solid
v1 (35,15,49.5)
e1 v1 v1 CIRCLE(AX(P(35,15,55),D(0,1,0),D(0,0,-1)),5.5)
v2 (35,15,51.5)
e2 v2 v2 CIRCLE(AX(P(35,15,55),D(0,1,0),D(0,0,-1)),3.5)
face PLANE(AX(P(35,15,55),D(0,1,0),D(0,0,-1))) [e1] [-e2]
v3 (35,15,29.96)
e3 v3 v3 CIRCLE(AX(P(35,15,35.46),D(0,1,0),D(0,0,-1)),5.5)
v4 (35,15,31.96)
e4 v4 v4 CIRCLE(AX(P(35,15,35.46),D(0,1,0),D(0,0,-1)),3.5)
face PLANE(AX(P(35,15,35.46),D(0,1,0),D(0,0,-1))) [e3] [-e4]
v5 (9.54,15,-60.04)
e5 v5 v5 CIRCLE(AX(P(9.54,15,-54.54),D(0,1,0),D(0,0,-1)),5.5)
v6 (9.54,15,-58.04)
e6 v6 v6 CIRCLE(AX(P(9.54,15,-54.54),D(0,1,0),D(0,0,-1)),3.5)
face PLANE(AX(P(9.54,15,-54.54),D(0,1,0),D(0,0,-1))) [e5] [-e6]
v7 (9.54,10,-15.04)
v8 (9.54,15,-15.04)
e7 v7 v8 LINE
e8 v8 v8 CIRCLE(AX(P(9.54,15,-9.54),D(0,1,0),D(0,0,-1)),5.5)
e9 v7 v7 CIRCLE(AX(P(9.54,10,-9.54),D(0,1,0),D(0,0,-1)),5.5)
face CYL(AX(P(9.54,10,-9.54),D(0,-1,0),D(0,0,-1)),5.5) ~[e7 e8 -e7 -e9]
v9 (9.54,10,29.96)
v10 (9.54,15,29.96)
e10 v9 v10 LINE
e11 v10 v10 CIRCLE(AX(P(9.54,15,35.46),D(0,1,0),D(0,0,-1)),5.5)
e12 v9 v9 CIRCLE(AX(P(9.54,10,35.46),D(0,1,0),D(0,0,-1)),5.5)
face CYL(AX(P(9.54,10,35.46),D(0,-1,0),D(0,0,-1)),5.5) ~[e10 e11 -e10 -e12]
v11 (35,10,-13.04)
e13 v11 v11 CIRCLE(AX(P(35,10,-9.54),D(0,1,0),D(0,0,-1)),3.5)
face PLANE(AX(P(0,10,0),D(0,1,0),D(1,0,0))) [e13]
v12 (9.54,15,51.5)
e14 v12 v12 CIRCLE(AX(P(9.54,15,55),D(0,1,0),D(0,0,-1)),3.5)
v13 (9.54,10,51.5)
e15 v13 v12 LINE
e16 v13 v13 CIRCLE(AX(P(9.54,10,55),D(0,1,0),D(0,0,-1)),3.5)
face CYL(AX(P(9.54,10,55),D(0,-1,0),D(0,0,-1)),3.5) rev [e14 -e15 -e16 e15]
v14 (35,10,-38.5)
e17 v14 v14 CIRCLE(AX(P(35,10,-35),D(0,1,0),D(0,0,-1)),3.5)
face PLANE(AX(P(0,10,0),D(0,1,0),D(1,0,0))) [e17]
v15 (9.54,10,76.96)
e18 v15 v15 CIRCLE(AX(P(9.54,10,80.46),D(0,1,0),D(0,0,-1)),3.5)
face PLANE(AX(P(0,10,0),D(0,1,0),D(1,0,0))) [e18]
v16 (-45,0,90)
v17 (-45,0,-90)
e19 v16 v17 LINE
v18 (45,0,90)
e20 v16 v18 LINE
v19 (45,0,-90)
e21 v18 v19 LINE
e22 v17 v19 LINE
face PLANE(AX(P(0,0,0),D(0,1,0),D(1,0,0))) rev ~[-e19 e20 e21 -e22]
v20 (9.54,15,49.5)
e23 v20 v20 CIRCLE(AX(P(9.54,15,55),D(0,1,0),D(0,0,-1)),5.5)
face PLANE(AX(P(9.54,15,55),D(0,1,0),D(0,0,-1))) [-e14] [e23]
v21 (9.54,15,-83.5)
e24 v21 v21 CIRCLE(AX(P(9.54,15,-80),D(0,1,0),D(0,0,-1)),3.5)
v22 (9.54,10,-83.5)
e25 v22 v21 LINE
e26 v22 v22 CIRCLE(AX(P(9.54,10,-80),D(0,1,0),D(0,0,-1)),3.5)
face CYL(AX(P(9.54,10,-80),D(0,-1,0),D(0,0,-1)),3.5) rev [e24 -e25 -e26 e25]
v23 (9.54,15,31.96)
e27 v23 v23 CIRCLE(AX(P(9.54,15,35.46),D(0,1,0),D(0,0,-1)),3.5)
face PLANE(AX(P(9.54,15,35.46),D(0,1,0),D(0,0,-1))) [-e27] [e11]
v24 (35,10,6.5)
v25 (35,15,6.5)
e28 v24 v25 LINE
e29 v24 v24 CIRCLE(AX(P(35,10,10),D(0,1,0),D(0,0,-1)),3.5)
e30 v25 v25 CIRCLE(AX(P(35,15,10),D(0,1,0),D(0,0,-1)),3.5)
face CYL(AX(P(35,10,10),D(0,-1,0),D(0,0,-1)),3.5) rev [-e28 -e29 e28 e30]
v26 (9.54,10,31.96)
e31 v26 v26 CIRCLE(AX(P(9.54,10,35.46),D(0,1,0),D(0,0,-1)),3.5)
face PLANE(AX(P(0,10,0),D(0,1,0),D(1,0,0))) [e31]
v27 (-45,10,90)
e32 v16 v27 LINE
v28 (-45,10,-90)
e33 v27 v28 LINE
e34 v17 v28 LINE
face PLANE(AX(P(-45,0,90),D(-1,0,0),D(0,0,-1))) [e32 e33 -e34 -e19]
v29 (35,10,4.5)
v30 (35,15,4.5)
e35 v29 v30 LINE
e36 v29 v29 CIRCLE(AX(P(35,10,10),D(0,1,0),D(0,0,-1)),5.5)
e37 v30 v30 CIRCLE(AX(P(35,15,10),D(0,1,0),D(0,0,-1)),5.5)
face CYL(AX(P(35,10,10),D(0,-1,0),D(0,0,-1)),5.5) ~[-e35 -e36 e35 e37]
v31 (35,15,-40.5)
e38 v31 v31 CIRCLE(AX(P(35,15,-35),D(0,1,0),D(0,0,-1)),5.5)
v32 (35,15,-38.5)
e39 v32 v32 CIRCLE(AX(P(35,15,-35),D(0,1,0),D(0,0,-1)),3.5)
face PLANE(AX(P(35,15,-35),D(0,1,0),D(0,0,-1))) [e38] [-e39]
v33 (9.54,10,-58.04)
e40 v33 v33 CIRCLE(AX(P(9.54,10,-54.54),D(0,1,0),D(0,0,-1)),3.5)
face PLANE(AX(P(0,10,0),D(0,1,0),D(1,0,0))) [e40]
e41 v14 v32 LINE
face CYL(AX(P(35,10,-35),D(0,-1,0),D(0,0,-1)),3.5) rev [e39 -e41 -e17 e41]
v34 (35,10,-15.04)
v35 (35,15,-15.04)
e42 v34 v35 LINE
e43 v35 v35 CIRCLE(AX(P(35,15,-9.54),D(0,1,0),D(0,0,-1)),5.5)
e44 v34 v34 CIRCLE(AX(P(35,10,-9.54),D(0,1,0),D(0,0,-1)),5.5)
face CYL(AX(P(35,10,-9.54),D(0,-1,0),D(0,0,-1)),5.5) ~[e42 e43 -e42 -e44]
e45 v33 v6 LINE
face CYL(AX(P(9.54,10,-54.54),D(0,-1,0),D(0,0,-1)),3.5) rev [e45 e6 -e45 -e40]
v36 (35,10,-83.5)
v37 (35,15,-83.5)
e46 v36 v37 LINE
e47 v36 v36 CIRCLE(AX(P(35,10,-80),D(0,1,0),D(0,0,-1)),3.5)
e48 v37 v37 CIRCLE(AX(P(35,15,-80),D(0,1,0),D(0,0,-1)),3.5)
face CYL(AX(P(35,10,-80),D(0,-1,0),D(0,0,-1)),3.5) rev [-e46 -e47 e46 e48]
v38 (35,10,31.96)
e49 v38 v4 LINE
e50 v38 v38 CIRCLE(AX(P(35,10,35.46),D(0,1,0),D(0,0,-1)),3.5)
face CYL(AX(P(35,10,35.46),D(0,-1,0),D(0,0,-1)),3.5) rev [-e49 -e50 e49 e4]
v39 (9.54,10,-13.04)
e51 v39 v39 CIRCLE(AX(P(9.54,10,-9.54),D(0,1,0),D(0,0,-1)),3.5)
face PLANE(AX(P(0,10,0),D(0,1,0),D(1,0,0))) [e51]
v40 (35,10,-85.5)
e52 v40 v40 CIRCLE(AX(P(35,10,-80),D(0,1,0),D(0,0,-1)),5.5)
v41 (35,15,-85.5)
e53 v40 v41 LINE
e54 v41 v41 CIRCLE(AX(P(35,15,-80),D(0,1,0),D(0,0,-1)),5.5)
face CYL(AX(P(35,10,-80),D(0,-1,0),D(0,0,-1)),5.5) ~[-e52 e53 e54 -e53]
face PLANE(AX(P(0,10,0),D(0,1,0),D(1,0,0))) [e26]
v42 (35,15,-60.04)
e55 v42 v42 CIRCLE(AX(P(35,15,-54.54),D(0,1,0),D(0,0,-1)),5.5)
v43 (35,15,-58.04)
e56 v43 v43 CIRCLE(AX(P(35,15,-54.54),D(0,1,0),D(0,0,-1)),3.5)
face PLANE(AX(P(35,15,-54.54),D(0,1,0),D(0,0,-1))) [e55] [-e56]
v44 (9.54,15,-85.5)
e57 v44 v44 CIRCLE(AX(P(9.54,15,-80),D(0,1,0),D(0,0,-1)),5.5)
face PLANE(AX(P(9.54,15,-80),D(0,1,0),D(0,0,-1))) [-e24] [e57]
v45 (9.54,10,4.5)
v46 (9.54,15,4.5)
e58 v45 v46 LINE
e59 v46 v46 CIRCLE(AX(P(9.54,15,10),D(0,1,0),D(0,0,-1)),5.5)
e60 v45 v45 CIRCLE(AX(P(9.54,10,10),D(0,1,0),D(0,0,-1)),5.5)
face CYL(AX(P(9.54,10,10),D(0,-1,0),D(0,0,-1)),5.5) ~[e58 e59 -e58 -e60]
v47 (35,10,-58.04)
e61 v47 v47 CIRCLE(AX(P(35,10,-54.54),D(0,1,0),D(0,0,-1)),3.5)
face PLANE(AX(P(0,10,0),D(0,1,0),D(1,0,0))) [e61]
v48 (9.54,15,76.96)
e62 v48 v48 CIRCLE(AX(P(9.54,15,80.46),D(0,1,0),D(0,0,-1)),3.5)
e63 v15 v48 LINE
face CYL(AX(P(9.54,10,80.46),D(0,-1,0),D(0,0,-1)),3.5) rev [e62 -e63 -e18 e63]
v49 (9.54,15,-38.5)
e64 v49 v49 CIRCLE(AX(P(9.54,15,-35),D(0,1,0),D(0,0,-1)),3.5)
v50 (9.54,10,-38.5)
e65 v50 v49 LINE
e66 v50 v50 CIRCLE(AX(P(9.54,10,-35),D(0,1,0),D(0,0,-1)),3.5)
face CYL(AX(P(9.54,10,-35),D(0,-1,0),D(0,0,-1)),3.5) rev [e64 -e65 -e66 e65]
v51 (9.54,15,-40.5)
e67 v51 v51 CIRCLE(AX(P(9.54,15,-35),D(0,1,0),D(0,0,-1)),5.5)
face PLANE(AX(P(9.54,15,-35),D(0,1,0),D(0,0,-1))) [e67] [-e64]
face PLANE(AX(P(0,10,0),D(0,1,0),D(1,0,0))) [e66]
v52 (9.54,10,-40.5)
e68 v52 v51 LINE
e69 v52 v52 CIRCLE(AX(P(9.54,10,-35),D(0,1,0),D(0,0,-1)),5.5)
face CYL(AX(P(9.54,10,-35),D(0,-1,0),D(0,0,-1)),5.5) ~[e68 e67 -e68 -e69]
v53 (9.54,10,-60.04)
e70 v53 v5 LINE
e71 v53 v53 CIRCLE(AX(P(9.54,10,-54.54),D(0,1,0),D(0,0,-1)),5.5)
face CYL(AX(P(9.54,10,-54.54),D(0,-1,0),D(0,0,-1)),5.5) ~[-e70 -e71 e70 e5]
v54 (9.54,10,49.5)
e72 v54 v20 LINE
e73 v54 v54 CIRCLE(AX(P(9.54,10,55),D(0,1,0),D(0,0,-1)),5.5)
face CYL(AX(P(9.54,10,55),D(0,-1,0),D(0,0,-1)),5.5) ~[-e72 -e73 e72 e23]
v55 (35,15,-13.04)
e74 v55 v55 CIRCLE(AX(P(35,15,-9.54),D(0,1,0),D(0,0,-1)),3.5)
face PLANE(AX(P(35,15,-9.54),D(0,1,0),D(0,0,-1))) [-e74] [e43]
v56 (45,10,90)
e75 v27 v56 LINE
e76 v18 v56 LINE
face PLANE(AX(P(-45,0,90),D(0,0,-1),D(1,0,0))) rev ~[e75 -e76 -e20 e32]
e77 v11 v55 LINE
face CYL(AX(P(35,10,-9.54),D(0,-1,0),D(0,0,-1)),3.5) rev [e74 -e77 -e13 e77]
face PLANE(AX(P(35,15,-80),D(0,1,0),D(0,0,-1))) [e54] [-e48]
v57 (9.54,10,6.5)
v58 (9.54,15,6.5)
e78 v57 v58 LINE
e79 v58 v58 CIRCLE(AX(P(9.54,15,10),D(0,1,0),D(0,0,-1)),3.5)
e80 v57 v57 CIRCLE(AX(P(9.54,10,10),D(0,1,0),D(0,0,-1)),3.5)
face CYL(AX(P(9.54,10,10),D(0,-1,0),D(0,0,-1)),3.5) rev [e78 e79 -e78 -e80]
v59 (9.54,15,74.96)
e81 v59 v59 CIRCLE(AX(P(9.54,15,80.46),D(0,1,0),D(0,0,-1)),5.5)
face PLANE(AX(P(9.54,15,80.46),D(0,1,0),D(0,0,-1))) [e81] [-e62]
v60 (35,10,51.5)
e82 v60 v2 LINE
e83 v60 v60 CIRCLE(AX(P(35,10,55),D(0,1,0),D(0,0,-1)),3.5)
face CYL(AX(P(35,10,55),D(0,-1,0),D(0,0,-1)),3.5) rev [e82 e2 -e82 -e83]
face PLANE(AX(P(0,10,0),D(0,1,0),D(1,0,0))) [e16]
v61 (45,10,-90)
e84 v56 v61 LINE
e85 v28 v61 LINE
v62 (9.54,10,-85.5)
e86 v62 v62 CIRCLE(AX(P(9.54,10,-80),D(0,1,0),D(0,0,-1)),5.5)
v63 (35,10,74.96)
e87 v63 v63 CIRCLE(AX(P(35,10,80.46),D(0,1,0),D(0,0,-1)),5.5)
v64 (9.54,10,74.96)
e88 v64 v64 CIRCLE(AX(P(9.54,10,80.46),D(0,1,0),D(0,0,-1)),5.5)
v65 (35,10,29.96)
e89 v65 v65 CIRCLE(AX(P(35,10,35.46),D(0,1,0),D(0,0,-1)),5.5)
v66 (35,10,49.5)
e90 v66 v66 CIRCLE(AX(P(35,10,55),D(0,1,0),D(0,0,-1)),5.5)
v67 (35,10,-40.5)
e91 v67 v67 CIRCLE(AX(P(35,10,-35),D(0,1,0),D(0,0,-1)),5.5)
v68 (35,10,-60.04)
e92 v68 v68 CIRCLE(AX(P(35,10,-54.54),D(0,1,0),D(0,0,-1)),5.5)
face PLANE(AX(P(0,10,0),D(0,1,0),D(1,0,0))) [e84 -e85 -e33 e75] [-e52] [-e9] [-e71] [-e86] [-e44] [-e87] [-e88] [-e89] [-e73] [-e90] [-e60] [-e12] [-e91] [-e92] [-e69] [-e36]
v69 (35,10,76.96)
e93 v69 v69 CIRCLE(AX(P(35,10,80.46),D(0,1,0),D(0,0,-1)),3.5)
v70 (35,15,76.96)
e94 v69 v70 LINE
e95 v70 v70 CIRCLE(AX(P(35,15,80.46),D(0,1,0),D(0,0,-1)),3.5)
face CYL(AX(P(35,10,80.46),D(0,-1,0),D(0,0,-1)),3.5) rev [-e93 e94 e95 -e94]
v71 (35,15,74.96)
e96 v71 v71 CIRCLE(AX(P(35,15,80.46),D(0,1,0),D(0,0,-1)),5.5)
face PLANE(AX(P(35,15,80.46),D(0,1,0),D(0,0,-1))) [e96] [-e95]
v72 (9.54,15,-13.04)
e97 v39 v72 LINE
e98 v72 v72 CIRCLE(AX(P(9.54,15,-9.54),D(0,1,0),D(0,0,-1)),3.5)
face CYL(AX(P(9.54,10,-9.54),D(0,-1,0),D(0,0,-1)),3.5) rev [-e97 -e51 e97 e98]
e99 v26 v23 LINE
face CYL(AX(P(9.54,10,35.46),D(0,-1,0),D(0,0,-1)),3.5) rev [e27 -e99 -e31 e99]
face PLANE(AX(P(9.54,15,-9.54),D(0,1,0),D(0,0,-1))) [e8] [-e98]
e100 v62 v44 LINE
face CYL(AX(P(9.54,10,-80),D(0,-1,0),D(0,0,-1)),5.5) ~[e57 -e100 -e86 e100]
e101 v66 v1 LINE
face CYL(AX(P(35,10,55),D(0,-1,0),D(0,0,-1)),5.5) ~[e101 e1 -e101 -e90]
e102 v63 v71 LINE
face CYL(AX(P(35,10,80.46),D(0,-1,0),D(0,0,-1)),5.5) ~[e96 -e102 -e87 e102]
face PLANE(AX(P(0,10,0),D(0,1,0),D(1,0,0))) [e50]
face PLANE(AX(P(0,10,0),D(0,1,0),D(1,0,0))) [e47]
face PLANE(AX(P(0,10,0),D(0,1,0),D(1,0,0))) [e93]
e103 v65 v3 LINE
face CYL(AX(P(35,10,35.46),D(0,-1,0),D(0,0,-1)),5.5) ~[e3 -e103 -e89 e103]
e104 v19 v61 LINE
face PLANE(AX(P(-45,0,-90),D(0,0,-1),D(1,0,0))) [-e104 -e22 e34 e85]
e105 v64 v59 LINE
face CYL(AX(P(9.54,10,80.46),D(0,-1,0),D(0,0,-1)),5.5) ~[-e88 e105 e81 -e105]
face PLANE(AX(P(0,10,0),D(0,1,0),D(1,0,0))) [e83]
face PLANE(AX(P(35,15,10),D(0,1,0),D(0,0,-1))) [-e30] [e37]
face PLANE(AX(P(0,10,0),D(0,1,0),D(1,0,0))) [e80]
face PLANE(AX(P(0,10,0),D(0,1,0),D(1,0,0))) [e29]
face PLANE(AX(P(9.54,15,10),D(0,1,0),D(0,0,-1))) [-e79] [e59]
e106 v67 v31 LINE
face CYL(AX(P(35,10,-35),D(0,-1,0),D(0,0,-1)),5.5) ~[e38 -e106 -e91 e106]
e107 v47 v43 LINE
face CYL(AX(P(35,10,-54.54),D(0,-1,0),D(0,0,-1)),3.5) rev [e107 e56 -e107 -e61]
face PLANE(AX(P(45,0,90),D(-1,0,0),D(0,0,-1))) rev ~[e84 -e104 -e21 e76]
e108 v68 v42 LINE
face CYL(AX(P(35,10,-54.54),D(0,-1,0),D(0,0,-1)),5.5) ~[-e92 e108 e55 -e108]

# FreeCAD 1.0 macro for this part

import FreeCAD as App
import Part
import Sketcher
from FreeCAD import Vector


def add_polygon(sketch, points):
    """Adds a closed chain of lines whose ends are joined by coincident constraints."""
    first, n = sketch.GeometryCount, len(points)
    for a, b in zip(points, points[1:] + points[:1]):
        sketch.addGeometry(Part.LineSegment(App.Vector(*a, 0), App.Vector(*b, 0)), False)
    for i in range(n):
        sketch.addConstraint(Sketcher.Constraint("Coincident", first + i, 2, first + (i + 1) % n, 1))

doc = App.newDocument("Part")
body = doc.addObject("PartDesign::Body", "Body")

# Sketch on XZ plane
sketch1 = body.newObject("Sketcher::SketchObject", "Sketch")
sketch1.AttachmentSupport = (doc.getObject("XZ_Plane"), [""])
sketch1.MapMode = "FlatFace"
add_polygon(sketch1, [(-45, -90), (-45, 90), (45, 90), (45, -90)])  # lines 0-3
sketch1.addConstraint([
    Sketcher.Constraint("Vertical", 0),
    Sketcher.Constraint("Horizontal", 1),
    Sketcher.Constraint("Vertical", 2),
    Sketcher.Constraint("Horizontal", 3),
    Sketcher.Constraint("Symmetric", 0, 2, 2, 2, -1, 1),
    Sketcher.Constraint("DistanceX", 1, 1, 1, 2, 90.0),
    Sketcher.Constraint("DistanceY", 0, 1, 0, 2, 180.0),
])
pad1 = body.newObject("PartDesign::Pad", "Pad")
pad1.Profile = sketch1
pad1.Length = 10
pad1.Reversed = True

# Sketch on XZ plane
sketch2 = body.newObject("Sketcher::SketchObject", "Sketch001")
sketch2.AttachmentSupport = (doc.getObject("XZ_Plane"), [""])
sketch2.MapMode = "FlatFace"
sketch2.AttachmentOffset = App.Placement(Vector(0, 0, -10), App.Rotation())
sketch2.addGeometry([
    Part.Circle(Vector(9.5, 80.5, 0), Vector(0, 0, 1), 5.5),  # 0
    Part.Circle(Vector(9.5, 80.5, 0), Vector(0, 0, 1), 3.5),  # 1
    Part.Circle(Vector(35, 80.5, 0), Vector(0, 0, 1), 5.5),  # 2
    Part.Circle(Vector(35, 80.5, 0), Vector(0, 0, 1), 3.5),  # 3
    Part.Circle(Vector(9.5, 55, 0), Vector(0, 0, 1), 5.5),  # 4
    Part.Circle(Vector(9.5, 55, 0), Vector(0, 0, 1), 3.5),  # 5
    Part.Circle(Vector(35, 55, 0), Vector(0, 0, 1), 5.5),  # 6
    Part.Circle(Vector(35, 55, 0), Vector(0, 0, 1), 3.5),  # 7
    Part.Circle(Vector(9.5, 35.5, 0), Vector(0, 0, 1), 5.5),  # 8
    Part.Circle(Vector(9.5, 35.5, 0), Vector(0, 0, 1), 3.5),  # 9
    Part.Circle(Vector(35, 35.5, 0), Vector(0, 0, 1), 5.5),  # 10
    Part.Circle(Vector(35, 35.5, 0), Vector(0, 0, 1), 3.5),  # 11
    Part.Circle(Vector(9.5, 10, 0), Vector(0, 0, 1), 5.5),  # 12
    Part.Circle(Vector(9.5, 10, 0), Vector(0, 0, 1), 3.5),  # 13
    Part.Circle(Vector(35, 10, 0), Vector(0, 0, 1), 5.5),  # 14
    Part.Circle(Vector(35, 10, 0), Vector(0, 0, 1), 3.5),  # 15
    Part.Circle(Vector(9.5, -9.5, 0), Vector(0, 0, 1), 5.5),  # 16
    Part.Circle(Vector(9.5, -9.5, 0), Vector(0, 0, 1), 3.5),  # 17
    Part.Circle(Vector(35, -9.5, 0), Vector(0, 0, 1), 5.5),  # 18
    Part.Circle(Vector(35, -9.5, 0), Vector(0, 0, 1), 3.5),  # 19
    Part.Circle(Vector(9.5, -35, 0), Vector(0, 0, 1), 5.5),  # 20
    Part.Circle(Vector(9.5, -35, 0), Vector(0, 0, 1), 3.5),  # 21
    Part.Circle(Vector(35, -35, 0), Vector(0, 0, 1), 5.5),  # 22
    Part.Circle(Vector(35, -35, 0), Vector(0, 0, 1), 3.5),  # 23
    Part.Circle(Vector(9.5, -54.5, 0), Vector(0, 0, 1), 5.5),  # 24
    Part.Circle(Vector(9.5, -54.5, 0), Vector(0, 0, 1), 3.5),  # 25
    Part.Circle(Vector(35, -54.5, 0), Vector(0, 0, 1), 5.5),  # 26
    Part.Circle(Vector(35, -54.5, 0), Vector(0, 0, 1), 3.5),  # 27
    Part.Circle(Vector(9.5, -80, 0), Vector(0, 0, 1), 5.5),  # 28
    Part.Circle(Vector(9.5, -80, 0), Vector(0, 0, 1), 3.5),  # 29
    Part.Circle(Vector(35, -80, 0), Vector(0, 0, 1), 5.5),  # 30
    Part.Circle(Vector(35, -80, 0), Vector(0, 0, 1), 3.5),  # 31
], False)
sketch2.addConstraint([
    Sketcher.Constraint("Coincident", 1, 3, 0, 3),
    Sketcher.Constraint("Coincident", 3, 3, 2, 3),
    Sketcher.Constraint("Coincident", 5, 3, 4, 3),
    Sketcher.Constraint("Coincident", 7, 3, 6, 3),
    Sketcher.Constraint("Coincident", 9, 3, 8, 3),
    Sketcher.Constraint("Coincident", 11, 3, 10, 3),
    Sketcher.Constraint("Coincident", 13, 3, 12, 3),
    Sketcher.Constraint("Coincident", 15, 3, 14, 3),
    Sketcher.Constraint("Coincident", 17, 3, 16, 3),
    Sketcher.Constraint("Coincident", 19, 3, 18, 3),
    Sketcher.Constraint("Coincident", 21, 3, 20, 3),
    Sketcher.Constraint("Coincident", 23, 3, 22, 3),
    Sketcher.Constraint("Coincident", 25, 3, 24, 3),
    Sketcher.Constraint("Coincident", 27, 3, 26, 3),
    Sketcher.Constraint("Coincident", 29, 3, 28, 3),
    Sketcher.Constraint("Coincident", 31, 3, 30, 3),
    Sketcher.Constraint("Equal", 0, 2),
    Sketcher.Constraint("Equal", 1, 3),
    Sketcher.Constraint("Equal", 2, 4),
    Sketcher.Constraint("Equal", 3, 5),
    Sketcher.Constraint("Equal", 4, 6),
    Sketcher.Constraint("Equal", 5, 7),
    Sketcher.Constraint("Equal", 6, 8),
    Sketcher.Constraint("Equal", 7, 9),
    Sketcher.Constraint("Equal", 8, 10),
    Sketcher.Constraint("Equal", 9, 11),
    Sketcher.Constraint("Equal", 10, 12),
    Sketcher.Constraint("Equal", 11, 13),
    Sketcher.Constraint("Equal", 12, 14),
    Sketcher.Constraint("Equal", 13, 15),
    Sketcher.Constraint("Equal", 14, 16),
    Sketcher.Constraint("Equal", 15, 17),
    Sketcher.Constraint("Equal", 16, 18),
    Sketcher.Constraint("Equal", 17, 19),
    Sketcher.Constraint("Equal", 18, 20),
    Sketcher.Constraint("Equal", 19, 21),
    Sketcher.Constraint("Equal", 20, 22),
    Sketcher.Constraint("Equal", 21, 23),
    Sketcher.Constraint("Equal", 22, 24),
    Sketcher.Constraint("Equal", 23, 25),
    Sketcher.Constraint("Equal", 24, 26),
    Sketcher.Constraint("Equal", 25, 27),
    Sketcher.Constraint("Equal", 26, 28),
    Sketcher.Constraint("Equal", 27, 29),
    Sketcher.Constraint("Equal", 28, 30),
    Sketcher.Constraint("Equal", 29, 31),
    Sketcher.Constraint("Horizontal", 1, 3, 2, 3),
    Sketcher.Constraint("Horizontal", 5, 3, 6, 3),
    Sketcher.Constraint("Horizontal", 9, 3, 10, 3),
    Sketcher.Constraint("Horizontal", 13, 3, 14, 3),
    Sketcher.Constraint("Horizontal", 17, 3, 18, 3),
    Sketcher.Constraint("Horizontal", 21, 3, 22, 3),
    Sketcher.Constraint("Horizontal", 25, 3, 26, 3),
    Sketcher.Constraint("Horizontal", 29, 3, 30, 3),
    Sketcher.Constraint("Vertical", 1, 3, 4, 3),
    Sketcher.Constraint("Vertical", 3, 3, 6, 3),
    Sketcher.Constraint("Vertical", 5, 3, 8, 3),
    Sketcher.Constraint("Vertical", 7, 3, 10, 3),
    Sketcher.Constraint("Vertical", 9, 3, 12, 3),
    Sketcher.Constraint("Vertical", 11, 3, 14, 3),
    Sketcher.Constraint("Vertical", 13, 3, 16, 3),
    Sketcher.Constraint("Vertical", 15, 3, 18, 3),
    Sketcher.Constraint("Vertical", 17, 3, 20, 3),
    Sketcher.Constraint("Vertical", 19, 3, 22, 3),
    Sketcher.Constraint("Vertical", 21, 3, 24, 3),
    Sketcher.Constraint("Vertical", 23, 3, 26, 3),
    Sketcher.Constraint("Vertical", 25, 3, 28, 3),
    Sketcher.Constraint("Vertical", 27, 3, 30, 3),
    Sketcher.Constraint("Diameter", 0, 11.0),
    Sketcher.Constraint("Diameter", 1, 7.0),
    Sketcher.Constraint("DistanceX", -1, 1, 2, 3, 35.0),
    Sketcher.Constraint("DistanceY", -1, 1, 4, 3, 55.0),
    Sketcher.Constraint("DistanceY", -1, 1, 12, 3, 10.0),
    Sketcher.Constraint("DistanceY", 20, 3, -1, 1, 35.0),
    Sketcher.Constraint("DistanceY", 28, 3, -1, 1, 80.0),
    Sketcher.Constraint("DistanceY", 8, 3, 0, 3, 45.0),
    Sketcher.Constraint("DistanceY", 16, 3, 8, 3, 45.0),
    Sketcher.Constraint("DistanceY", 24, 3, 16, 3, 45.0),
    Sketcher.Constraint("DistanceX", -1, 1, 0, 3, 9.54),
    Sketcher.Constraint("DistanceY", -1, 1, 0, 3, 80.46),
])
pad2 = body.newObject("PartDesign::Pad", "Pad001")
pad2.Profile = sketch2
pad2.Length = 5
pad2.Reversed = True

doc.recompute()
